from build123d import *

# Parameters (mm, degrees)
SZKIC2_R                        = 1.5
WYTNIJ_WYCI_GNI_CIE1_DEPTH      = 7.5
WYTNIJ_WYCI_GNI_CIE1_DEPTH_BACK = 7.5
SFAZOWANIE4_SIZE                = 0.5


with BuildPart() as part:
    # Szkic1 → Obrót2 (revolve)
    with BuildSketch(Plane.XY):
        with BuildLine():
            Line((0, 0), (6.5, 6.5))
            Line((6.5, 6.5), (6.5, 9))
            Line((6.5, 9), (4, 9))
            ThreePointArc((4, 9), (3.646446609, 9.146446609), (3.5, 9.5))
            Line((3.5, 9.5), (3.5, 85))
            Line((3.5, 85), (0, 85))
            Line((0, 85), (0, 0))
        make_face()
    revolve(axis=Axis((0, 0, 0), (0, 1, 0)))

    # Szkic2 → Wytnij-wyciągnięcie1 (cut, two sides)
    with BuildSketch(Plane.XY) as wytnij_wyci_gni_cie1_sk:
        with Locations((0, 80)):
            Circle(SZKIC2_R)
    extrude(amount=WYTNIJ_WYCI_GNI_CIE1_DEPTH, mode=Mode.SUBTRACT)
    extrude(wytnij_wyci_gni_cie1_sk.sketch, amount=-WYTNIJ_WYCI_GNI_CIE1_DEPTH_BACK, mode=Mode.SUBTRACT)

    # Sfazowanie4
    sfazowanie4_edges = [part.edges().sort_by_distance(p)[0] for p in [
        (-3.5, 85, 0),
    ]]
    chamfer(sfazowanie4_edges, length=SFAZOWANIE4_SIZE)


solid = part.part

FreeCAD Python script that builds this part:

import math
import FreeCAD as App
import Part
import Sketcher
from FreeCAD import Vector
Q = App.Units.Quantity


def edges_at(feature, points):
    """Names of the edges that pass closest to the given points."""
    edges = feature.Shape.Edges
    near = lambda p: min(range(len(edges)), key=lambda i: edges[i].distToShape(Part.Vertex(*p))[0])
    return sorted({f"Edge{near(p) + 1}" for p in points})

doc = App.newDocument("Part")
body = doc.addObject("PartDesign::Body", "Body")

sketch1 = body.newObject("Sketcher::SketchObject", "Sketch")
sketch1.AttachmentSupport = (doc.getObject("XY_Plane"), [""])
sketch1.MapMode = "FlatFace"
sketch1.addGeometry([
    Part.LineSegment(Vector(0, 0, 0), Vector(6.5, 6.5, 0)),
    Part.LineSegment(Vector(6.5, 6.5, 0), Vector(6.5, 9, 0)),
    Part.LineSegment(Vector(6.5, 9, 0), Vector(4, 9, 0)),
    Part.ArcOfCircle(Part.Circle(Vector(4, 9.5, 0), Vector(0, 0, 1), 0.5), math.radians(180), math.radians(270)),
    Part.LineSegment(Vector(3.5, 9.5, 0), Vector(3.5, 85, 0)),
    Part.LineSegment(Vector(3.5, 85, 0), Vector(0, 85, 0)),
    Part.LineSegment(Vector(0, 85, 0), Vector(0, 0, 0)),
], False)
sketch1.addConstraint([
    Sketcher.Constraint("Coincident", 0, 2, 1, 1),
    Sketcher.Constraint("Coincident", 1, 2, 2, 1),
    Sketcher.Constraint("Tangent", 2, 2, 3, 2),
    Sketcher.Constraint("Tangent", 3, 1, 4, 1),
    Sketcher.Constraint("Coincident", 4, 2, 5, 1),
    Sketcher.Constraint("Coincident", 5, 2, 6, 1),
    Sketcher.Constraint("Coincident", 6, 2, 0, 1),
    Sketcher.Constraint("Vertical", 1),
    Sketcher.Constraint("Horizontal", 2),
    Sketcher.Constraint("Vertical", 4),
    Sketcher.Constraint("Horizontal", 5),
    Sketcher.Constraint("Vertical", 6),
    Sketcher.Constraint("Coincident", 6, 2, -1, 1),
    Sketcher.Constraint("Equal", 2, 1),
    Sketcher.Constraint("Radius", 3, Q("0.5 mm")),
    Sketcher.Constraint("DistanceY", 6, 2, 6, 1, Q("85 mm")),
    Sketcher.Constraint("Angle", 0, Q("45 deg")),
    Sketcher.Constraint("DistanceX", 2, 2, 2, 1, Q("2.5 mm")),
    Sketcher.Constraint("DistanceX", 5, 2, 5, 1, Q("3.5 mm")),
])
revolution = body.newObject("PartDesign::Revolution", "Revolution")
revolution.Profile = sketch1
revolution.ReferenceAxis = (sketch1, ["V_Axis"])
revolution.Angle = 360

sketch2 = body.newObject("Sketcher::SketchObject", "Sketch001")
sketch2.AttachmentSupport = (doc.getObject("XY_Plane"), [""])
sketch2.MapMode = "FlatFace"
sketch2.addGeometry(Part.Circle(Vector(0, 80, 0), Vector(0, 0, 1), 1.5), False)
sketch2.addConstraint([
    Sketcher.Constraint("PointOnObject", 0, 3, -2),
    Sketcher.Constraint("Diameter", 0, Q("3 mm")),
    Sketcher.Constraint("DistanceY", -1, 1, 0, 3, Q("80 mm")),
])
pocket1 = body.newObject("PartDesign::Pocket", "Pocket")
pocket1.Profile = sketch2
pocket1.Type = "ThroughAll"
pocket1.Midplane = True
doc.recompute()

chamfer = body.newObject("PartDesign::Chamfer", "Chamfer")
chamfer.Base = (pocket1, edges_at(pocket1, [(-3.5, 85, 0)]))
chamfer.Size = 0.5

doc.recompute()
